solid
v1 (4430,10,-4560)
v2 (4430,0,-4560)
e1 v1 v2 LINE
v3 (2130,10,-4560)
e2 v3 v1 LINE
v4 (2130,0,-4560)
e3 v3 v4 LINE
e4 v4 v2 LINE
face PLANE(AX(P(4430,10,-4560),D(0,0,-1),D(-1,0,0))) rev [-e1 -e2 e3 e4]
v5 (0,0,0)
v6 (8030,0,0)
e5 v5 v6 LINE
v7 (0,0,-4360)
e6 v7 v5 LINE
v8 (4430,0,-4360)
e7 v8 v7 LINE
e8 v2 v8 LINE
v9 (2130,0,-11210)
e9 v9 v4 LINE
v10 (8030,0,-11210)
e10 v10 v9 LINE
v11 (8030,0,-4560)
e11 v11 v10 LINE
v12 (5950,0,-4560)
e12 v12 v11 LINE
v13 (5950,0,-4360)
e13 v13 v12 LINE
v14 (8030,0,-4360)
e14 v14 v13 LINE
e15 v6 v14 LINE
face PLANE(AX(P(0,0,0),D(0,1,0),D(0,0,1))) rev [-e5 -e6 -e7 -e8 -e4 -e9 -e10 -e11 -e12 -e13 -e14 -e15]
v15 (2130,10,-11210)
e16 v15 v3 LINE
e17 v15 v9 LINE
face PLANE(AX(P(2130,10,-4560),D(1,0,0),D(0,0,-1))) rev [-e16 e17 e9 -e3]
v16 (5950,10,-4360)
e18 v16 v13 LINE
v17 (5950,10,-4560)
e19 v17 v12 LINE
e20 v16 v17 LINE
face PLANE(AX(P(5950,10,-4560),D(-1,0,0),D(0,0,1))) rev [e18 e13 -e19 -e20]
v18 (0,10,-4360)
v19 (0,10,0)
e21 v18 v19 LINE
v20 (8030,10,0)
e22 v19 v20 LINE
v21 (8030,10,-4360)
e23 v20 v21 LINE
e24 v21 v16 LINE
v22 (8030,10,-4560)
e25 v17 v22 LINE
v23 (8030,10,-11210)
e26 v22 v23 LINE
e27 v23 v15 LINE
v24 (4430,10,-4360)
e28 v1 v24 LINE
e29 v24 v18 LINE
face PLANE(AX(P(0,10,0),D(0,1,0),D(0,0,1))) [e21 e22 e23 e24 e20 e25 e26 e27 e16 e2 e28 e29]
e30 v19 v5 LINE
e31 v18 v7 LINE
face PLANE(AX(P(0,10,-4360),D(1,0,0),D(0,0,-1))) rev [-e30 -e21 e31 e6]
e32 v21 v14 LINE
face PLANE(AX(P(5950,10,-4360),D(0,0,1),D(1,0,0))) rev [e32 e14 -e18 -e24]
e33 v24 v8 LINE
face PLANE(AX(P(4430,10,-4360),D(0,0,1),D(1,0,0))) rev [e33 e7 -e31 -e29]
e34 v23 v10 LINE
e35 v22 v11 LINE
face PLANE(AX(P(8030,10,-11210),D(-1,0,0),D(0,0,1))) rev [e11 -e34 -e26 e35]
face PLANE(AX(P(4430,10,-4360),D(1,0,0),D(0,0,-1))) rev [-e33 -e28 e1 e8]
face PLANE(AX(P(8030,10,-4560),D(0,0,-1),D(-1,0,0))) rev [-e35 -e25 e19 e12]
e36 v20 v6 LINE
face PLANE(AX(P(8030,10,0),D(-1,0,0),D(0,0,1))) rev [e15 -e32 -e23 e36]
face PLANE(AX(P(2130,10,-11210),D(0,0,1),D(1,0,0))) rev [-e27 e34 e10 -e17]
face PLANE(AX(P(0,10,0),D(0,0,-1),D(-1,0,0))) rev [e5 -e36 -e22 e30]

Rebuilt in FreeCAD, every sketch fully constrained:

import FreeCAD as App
import Part
import Sketcher
from FreeCAD import Vector
Q = App.Units.Quantity


def add_polygon(sketch, points):
    """Adds a closed chain of lines whose ends are joined by coincident constraints."""
    first, n = sketch.GeometryCount, len(points)
    for a, b in zip(points, points[1:] + points[:1]):
        sketch.addGeometry(Part.LineSegment(App.Vector(*a, 0), App.Vector(*b, 0)), False)
    for i in range(n):
        sketch.addConstraint(Sketcher.Constraint("Coincident", first + i, 2, first + (i + 1) % n, 1))

doc = App.newDocument("Part")
params = doc.addObject("Spreadsheet::Sheet", "Params")
for row, (alias, value) in enumerate([
    ("sketch1_width", "5900 mm"),
    ("sketch1_width2", "2300 mm"),
    ("sketch1_width3", "4430 mm"),
    ("sketch1_width4", "2080 mm"),
    ("sketch1_height", "6650 mm"),
    ("pad1_length", "10 mm"),
], start=1):
    params.set(f"A{row}", alias)
    params.set(f"B{row}", "=" + value)
    params.setAlias(f"B{row}", alias)

body = doc.addObject("PartDesign::Body", "Body")

sketch1 = body.newObject("Sketcher::SketchObject", "Sketch")
sketch1.AttachmentSupport = (doc.getObject("XZ_Plane"), [""])
sketch1.MapMode = "FlatFace"
add_polygon(sketch1, [(8030, -4560), (8030, -11210), (2130, -11210), (2130, -4560), (4430, -4560), (4430, -4360), (0, -4360), (0, 0), (8030, 0), (8030, -4360), (5950, -4360), (5950, -4560)])
sketch1.addConstraint([
    Sketcher.Constraint("Vertical", 0),
    Sketcher.Constraint("Horizontal", 1),
    Sketcher.Constraint("Vertical", 2),
    Sketcher.Constraint("Horizontal", 3),
    Sketcher.Constraint("Vertical", 4),
    Sketcher.Constraint("Horizontal", 5),
    Sketcher.Constraint("Vertical", 6),
    Sketcher.Constraint("Horizontal", 7),
    Sketcher.Constraint("Vertical", 8),
    Sketcher.Constraint("Horizontal", 9),
    Sketcher.Constraint("Vertical", 10),
    Sketcher.Constraint("Horizontal", 11),
    Sketcher.Constraint("Coincident", 6, 2, -1, 1),
    Sketcher.Constraint("Horizontal", 5, 2, 8, 2),
    Sketcher.Constraint("Horizontal", 3, 2, 10, 2),
    Sketcher.Constraint("Vertical", 0, 2, 7, 2),
    Sketcher.Constraint("DistanceX", 1, 2, 1, 1, Q("5900 mm")),
    Sketcher.Constraint("DistanceX", 3, 1, 3, 2, Q("2300 mm")),
    Sketcher.Constraint("DistanceX", 5, 2, 5, 1, Q("4430 mm")),
    Sketcher.Constraint("DistanceX", 9, 2, 9, 1, Q("2080 mm")),
    Sketcher.Constraint("DistanceY", 0, 2, 0, 1, Q("6650 mm")),
    Sketcher.Constraint("DistanceY", 4, 1, 4, 2, Q("200 mm")),
    Sketcher.Constraint("DistanceY", 6, 1, 6, 2, Q("4360 mm")),
])
sketch1.setExpression("Constraints[28]", "Params.sketch1_width")
sketch1.setExpression("Constraints[29]", "Params.sketch1_width2")
sketch1.setExpression("Constraints[30]", "Params.sketch1_width3")
sketch1.setExpression("Constraints[31]", "Params.sketch1_width4")
sketch1.setExpression("Constraints[32]", "Params.sketch1_height")
pad1 = body.newObject("PartDesign::Pad", "Pad")
pad1.Profile = sketch1
pad1.setExpression("Length", "Params.pad1_length")
pad1.Reversed = True

doc.recompute()
